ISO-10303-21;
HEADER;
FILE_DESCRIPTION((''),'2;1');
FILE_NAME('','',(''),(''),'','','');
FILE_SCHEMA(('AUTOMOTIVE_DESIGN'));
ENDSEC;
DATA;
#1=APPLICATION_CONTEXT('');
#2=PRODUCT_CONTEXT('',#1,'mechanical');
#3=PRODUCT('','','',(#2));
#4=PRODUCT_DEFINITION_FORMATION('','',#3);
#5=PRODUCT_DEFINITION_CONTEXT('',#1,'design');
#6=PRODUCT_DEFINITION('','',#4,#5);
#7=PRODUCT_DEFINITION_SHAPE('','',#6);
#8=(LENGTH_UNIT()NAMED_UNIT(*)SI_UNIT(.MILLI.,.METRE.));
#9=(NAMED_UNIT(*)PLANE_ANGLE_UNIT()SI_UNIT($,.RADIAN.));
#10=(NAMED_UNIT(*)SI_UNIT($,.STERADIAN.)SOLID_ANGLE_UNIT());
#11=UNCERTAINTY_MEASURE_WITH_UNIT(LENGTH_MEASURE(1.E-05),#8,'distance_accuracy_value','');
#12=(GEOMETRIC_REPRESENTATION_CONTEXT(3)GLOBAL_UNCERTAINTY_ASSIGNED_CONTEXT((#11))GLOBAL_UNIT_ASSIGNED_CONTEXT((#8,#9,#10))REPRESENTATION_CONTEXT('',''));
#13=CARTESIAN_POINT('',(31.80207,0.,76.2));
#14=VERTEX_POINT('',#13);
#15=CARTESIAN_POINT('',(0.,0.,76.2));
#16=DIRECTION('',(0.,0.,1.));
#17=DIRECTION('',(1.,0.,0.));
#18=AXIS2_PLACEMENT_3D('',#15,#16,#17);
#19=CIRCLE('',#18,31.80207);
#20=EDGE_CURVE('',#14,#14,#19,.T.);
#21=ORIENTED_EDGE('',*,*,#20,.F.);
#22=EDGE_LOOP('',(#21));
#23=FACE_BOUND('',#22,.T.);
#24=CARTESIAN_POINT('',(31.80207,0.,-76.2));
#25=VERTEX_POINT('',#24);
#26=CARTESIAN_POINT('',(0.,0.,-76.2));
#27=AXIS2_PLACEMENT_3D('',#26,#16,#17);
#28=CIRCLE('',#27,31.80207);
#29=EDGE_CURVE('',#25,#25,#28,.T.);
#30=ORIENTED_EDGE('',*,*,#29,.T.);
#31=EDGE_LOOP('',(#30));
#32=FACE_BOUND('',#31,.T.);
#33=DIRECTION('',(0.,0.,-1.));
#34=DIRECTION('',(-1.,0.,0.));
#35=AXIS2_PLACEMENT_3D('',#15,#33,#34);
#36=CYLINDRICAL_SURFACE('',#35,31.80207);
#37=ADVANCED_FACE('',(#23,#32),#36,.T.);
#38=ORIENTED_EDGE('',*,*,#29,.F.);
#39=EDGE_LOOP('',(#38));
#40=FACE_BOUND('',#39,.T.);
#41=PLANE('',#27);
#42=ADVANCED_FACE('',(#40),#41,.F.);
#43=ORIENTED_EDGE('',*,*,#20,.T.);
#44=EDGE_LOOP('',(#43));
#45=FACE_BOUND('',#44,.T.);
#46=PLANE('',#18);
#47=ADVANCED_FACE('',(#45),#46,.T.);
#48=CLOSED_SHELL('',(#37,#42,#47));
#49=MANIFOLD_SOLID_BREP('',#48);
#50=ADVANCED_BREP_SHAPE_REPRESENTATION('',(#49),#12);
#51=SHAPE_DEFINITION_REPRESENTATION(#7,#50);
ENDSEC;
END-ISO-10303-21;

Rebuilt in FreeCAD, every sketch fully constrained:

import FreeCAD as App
import Part
import Sketcher

V = App.Vector
Q = App.Units.Quantity

doc = App.newDocument("Part")
body = doc.addObject("PartDesign::Body", "Body")

# Sketch on XY plane
sketch1 = body.newObject("Sketcher::SketchObject", "Sketch")
sketch1.AttachmentSupport = (doc.getObject("XY_Plane"), [""])
sketch1.MapMode = "FlatFace"
sketch1.addGeometry(Part.Circle(V(0, 0, 0), V(0, 0, 1), 32), False)
sketch1.addConstraint(Sketcher.Constraint("Coincident", 0, 3, -1, 1))
sketch1.addConstraint(Sketcher.Constraint("Diameter", 0, Q("2.5041 in")))
pad1 = body.newObject("PartDesign::Pad", "Pad")
pad1.Profile = sketch1
pad1.Length = Q("6 in")
pad1.Midplane = True

doc.recompute()
